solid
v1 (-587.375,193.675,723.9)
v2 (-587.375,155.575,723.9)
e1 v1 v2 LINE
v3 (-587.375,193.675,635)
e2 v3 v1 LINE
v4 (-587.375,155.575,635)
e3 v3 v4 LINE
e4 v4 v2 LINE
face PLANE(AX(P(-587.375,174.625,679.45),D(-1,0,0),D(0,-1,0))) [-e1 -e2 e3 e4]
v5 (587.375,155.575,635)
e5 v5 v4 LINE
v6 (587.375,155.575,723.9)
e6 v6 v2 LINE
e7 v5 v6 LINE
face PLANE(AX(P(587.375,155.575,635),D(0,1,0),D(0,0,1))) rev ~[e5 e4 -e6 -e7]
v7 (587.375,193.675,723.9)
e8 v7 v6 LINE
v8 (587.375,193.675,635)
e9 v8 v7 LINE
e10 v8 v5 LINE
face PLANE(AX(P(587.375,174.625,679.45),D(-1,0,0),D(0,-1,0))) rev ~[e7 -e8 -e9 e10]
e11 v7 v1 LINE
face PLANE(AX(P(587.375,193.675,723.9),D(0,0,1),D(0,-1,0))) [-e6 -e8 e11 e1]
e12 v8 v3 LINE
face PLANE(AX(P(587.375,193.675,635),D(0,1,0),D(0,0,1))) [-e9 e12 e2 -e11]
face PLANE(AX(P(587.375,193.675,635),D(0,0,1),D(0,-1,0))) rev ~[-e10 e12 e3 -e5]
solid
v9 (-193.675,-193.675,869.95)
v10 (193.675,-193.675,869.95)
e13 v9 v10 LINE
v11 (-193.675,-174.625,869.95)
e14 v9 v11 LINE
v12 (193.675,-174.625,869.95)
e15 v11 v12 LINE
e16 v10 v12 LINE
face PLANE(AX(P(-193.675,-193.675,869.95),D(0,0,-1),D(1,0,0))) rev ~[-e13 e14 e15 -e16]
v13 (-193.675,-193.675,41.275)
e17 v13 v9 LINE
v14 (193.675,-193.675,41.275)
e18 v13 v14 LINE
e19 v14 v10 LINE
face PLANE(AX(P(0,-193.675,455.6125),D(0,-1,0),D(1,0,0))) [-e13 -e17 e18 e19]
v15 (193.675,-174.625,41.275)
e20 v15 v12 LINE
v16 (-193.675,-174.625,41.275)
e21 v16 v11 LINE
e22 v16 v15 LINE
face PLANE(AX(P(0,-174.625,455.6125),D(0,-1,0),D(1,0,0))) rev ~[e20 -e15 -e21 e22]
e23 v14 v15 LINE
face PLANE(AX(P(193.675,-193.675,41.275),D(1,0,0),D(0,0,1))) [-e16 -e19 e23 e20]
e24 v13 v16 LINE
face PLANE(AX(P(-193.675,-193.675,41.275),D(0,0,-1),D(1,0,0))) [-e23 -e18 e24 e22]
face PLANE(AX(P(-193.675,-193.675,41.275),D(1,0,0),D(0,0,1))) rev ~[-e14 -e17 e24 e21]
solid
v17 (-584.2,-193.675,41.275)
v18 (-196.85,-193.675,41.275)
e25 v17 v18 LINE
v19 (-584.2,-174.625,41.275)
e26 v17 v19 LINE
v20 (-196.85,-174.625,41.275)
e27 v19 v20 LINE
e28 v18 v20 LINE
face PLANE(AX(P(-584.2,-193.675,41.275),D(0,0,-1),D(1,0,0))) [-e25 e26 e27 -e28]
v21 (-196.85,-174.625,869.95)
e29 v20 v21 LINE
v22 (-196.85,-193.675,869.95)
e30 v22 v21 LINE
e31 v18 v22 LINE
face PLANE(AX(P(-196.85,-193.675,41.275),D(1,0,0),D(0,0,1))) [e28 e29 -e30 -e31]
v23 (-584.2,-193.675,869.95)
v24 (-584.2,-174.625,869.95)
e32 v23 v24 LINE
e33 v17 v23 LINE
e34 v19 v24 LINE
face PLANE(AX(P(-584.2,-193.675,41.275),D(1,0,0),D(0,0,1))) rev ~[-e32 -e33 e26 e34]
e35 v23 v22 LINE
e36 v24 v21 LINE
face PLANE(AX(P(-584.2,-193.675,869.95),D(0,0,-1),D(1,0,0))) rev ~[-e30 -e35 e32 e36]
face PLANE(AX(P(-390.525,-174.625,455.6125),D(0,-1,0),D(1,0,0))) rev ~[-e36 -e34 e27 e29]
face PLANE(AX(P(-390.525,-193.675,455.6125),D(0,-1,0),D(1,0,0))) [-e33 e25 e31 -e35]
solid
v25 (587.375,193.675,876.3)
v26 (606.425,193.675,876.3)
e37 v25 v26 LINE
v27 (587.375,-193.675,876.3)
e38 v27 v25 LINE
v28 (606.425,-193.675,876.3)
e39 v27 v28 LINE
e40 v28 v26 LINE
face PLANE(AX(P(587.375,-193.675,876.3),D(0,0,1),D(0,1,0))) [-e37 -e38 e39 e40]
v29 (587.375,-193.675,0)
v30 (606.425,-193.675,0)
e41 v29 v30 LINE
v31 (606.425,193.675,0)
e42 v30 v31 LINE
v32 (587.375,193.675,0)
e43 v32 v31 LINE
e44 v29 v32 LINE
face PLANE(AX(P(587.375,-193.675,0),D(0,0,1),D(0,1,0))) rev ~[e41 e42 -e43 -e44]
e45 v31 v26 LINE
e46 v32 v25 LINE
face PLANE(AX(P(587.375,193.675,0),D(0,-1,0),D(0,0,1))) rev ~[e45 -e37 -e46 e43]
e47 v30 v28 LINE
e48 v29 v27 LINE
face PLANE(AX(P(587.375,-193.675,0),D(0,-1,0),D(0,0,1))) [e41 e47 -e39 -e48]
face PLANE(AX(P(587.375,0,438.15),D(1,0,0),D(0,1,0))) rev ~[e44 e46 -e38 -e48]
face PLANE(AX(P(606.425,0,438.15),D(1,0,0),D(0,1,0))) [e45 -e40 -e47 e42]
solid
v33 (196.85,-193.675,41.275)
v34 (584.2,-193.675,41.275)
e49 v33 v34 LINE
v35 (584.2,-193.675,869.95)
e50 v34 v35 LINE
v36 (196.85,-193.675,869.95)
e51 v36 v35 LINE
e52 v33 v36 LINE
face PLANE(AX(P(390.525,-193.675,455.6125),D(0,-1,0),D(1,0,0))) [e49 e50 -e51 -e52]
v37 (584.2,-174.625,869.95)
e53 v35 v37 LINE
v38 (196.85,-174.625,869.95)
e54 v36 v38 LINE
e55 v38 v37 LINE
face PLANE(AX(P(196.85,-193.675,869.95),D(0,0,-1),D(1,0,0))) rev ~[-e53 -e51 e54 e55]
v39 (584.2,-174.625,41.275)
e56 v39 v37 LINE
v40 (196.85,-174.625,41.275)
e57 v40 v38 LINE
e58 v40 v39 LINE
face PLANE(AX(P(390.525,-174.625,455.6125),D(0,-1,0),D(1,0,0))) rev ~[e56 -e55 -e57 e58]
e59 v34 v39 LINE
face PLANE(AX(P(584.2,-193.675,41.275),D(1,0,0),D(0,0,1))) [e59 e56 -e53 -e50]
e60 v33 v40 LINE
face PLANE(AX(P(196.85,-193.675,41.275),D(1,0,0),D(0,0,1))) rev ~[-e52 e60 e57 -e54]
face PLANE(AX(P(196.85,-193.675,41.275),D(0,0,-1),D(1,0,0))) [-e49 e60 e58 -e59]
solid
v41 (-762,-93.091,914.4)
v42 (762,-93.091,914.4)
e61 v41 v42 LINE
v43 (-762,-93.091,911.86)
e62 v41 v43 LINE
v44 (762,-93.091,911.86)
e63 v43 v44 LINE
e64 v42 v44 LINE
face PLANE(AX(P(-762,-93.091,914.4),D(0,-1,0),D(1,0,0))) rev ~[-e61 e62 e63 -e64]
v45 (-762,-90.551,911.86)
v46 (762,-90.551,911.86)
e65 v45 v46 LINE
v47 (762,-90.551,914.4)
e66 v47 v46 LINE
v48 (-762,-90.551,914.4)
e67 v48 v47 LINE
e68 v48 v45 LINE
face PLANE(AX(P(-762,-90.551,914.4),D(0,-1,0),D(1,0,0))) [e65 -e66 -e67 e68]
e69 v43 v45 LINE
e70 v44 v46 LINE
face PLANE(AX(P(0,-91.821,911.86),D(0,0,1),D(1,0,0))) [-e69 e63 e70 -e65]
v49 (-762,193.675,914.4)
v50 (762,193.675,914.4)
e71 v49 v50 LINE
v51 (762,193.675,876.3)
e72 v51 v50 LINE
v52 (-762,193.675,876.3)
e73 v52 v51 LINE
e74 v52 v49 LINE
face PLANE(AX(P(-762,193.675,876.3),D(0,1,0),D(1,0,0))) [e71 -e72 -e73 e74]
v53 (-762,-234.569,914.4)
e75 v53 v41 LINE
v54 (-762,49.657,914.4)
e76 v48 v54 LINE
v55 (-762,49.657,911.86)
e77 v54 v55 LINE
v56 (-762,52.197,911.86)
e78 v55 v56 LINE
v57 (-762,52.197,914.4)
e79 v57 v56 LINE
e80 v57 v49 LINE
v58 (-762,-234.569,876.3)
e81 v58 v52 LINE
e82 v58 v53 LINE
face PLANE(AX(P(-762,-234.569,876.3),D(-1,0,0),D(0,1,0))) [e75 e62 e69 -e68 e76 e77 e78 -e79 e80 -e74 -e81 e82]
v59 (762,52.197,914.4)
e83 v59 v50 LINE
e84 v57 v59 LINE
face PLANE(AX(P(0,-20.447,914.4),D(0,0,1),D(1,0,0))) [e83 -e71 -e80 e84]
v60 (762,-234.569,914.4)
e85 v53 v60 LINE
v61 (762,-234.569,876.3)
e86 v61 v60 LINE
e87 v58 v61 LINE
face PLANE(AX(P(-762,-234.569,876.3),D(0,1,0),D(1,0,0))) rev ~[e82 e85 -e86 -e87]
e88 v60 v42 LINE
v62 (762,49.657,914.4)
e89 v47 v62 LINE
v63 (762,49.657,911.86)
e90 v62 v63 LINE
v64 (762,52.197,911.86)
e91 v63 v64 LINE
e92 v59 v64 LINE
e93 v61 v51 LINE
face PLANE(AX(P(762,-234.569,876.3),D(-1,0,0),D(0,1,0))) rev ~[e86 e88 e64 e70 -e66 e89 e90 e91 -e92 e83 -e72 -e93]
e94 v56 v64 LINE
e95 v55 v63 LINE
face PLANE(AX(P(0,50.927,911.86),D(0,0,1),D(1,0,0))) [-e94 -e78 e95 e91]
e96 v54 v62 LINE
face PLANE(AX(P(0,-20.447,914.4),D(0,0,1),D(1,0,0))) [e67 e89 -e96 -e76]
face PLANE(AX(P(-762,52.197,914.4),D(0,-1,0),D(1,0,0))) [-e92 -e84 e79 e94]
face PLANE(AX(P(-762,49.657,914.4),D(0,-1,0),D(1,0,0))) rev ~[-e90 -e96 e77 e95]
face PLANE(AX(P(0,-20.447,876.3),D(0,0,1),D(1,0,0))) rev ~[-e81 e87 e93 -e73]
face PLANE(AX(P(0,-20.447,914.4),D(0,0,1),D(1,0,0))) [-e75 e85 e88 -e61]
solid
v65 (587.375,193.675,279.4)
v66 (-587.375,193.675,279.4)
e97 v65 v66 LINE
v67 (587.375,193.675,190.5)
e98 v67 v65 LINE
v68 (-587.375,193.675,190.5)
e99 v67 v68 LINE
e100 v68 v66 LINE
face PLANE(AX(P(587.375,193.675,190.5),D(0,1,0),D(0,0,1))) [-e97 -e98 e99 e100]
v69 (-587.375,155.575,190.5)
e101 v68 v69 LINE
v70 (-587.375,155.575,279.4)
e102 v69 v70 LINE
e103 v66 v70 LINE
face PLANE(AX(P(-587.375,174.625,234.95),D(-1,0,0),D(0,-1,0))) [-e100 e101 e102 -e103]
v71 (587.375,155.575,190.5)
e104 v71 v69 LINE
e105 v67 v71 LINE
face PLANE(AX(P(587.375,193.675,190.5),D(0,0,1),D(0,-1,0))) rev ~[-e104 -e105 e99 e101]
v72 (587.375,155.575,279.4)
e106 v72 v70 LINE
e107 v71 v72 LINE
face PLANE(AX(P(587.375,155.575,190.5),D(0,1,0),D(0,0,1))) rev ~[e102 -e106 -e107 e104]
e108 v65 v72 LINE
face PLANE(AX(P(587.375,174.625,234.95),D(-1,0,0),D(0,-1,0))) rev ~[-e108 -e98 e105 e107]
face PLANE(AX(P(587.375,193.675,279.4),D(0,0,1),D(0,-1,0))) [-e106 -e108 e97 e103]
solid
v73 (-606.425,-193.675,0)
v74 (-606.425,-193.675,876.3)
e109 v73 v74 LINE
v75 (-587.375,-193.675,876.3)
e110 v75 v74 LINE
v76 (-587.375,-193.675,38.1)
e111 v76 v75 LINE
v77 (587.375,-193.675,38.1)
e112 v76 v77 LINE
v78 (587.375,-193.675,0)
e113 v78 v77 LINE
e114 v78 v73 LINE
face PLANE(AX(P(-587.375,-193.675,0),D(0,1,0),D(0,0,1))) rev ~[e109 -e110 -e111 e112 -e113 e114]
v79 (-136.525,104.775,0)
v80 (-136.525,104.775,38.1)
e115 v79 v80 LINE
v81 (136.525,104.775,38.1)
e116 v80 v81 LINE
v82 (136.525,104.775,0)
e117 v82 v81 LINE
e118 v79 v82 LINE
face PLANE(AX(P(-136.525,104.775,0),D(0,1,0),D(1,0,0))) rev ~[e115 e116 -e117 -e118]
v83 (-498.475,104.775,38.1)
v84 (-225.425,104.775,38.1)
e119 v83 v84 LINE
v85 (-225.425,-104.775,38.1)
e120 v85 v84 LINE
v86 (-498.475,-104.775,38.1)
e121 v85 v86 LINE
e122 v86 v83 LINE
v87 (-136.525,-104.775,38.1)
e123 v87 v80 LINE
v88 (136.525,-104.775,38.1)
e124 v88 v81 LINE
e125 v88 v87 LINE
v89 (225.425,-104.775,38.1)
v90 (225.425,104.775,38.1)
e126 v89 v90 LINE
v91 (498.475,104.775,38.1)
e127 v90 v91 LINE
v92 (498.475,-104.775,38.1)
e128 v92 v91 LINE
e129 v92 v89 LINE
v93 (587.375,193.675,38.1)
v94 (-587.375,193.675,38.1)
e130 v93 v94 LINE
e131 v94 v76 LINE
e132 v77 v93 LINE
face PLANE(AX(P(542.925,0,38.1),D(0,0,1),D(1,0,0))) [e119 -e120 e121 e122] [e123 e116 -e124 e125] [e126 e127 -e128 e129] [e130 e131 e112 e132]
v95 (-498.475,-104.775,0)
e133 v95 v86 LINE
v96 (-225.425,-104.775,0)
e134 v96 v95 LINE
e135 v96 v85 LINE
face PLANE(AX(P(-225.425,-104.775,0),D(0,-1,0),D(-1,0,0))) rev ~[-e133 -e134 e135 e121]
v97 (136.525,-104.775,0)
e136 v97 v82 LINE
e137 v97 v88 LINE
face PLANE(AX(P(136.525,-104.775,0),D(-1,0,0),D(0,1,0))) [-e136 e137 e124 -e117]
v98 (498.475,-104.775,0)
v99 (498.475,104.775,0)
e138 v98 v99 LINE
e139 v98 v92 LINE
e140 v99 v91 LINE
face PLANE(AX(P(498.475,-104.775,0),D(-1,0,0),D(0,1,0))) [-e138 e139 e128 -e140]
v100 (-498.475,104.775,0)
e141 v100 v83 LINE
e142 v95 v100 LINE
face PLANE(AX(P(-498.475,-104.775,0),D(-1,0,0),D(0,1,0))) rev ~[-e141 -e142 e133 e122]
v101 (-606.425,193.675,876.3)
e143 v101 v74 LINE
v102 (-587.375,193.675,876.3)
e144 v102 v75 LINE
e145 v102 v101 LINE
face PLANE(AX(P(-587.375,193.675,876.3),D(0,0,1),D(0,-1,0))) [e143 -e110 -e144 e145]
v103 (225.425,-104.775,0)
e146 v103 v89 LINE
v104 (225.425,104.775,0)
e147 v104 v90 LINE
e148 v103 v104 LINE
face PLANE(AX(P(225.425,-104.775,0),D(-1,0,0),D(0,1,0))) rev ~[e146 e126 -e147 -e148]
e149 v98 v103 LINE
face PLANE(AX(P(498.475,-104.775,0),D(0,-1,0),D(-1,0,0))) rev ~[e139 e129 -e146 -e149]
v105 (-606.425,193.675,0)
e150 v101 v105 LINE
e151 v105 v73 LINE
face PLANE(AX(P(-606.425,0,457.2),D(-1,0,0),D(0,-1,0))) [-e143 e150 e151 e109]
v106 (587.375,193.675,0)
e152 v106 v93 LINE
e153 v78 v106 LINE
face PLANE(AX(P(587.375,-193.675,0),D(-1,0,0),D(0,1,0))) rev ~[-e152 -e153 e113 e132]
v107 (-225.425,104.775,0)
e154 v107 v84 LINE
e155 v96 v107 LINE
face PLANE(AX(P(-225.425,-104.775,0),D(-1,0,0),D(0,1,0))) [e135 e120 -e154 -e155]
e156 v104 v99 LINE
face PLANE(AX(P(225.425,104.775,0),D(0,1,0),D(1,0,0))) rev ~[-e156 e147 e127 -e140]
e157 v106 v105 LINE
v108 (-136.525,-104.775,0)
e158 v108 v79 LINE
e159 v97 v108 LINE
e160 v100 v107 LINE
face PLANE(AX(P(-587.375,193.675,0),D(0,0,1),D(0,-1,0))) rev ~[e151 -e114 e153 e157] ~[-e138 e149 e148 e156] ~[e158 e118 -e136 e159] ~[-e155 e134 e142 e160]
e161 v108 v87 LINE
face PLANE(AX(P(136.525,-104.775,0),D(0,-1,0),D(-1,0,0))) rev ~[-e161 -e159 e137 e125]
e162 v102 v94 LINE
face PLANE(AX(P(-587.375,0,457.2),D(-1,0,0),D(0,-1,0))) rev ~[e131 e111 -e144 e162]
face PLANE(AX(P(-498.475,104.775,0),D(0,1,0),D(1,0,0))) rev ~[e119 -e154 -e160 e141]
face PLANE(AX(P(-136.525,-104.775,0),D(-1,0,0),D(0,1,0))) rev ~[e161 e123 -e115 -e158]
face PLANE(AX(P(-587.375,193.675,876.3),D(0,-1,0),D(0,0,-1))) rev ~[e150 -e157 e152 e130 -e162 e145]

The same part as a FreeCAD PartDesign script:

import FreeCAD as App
import Part
import Sketcher
Q = App.Units.Quantity


def add_polygon(sketch, points):
    """Adds a closed chain of lines whose ends are joined by coincident constraints."""
    first, n = sketch.GeometryCount, len(points)
    for a, b in zip(points, points[1:] + points[:1]):
        sketch.addGeometry(Part.LineSegment(App.Vector(*a, 0), App.Vector(*b, 0)), False)
    for i in range(n):
        sketch.addConstraint(Sketcher.Constraint("Coincident", first + i, 2, first + (i + 1) % n, 1))

doc = App.newDocument("Part")
body = doc.addObject("PartDesign::Body", "Body")

# Sketch on XY plane
sketch1 = body.newObject("Sketcher::SketchObject", "Sketch")
sketch1.AttachmentSupport = (doc.getObject("XY_Plane"), [""])
sketch1.MapMode = "FlatFace"
add_polygon(sketch1, [(587, 194), (-587, 194), (-587, -194), (587, -194)])  # lines 0-3
add_polygon(sketch1, [(498, 105), (498, -105), (225, -105), (225, 105)])  # lines 4-7
add_polygon(sketch1, [(137, -105), (-137, -105), (-137, 105), (137, 105)])  # lines 8-11
add_polygon(sketch1, [(-225, -105), (-498, -105), (-498, 105), (-225, 105)])  # lines 12-15
sketch1.addConstraint([
    Sketcher.Constraint("Horizontal", 0),
    Sketcher.Constraint("Vertical", 1),
    Sketcher.Constraint("Horizontal", 2),
    Sketcher.Constraint("Vertical", 3),
    Sketcher.Constraint("Vertical", 4),
    Sketcher.Constraint("Horizontal", 5),
    Sketcher.Constraint("Vertical", 6),
    Sketcher.Constraint("Horizontal", 7),
    Sketcher.Constraint("Horizontal", 8),
    Sketcher.Constraint("Vertical", 9),
    Sketcher.Constraint("Horizontal", 10),
    Sketcher.Constraint("Vertical", 11),
    Sketcher.Constraint("Horizontal", 12),
    Sketcher.Constraint("Vertical", 13),
    Sketcher.Constraint("Horizontal", 14),
    Sketcher.Constraint("Vertical", 15),
    Sketcher.Constraint("Symmetric", 0, 2, 2, 2, -1, 1),
    Sketcher.Constraint("Symmetric", 8, 2, 10, 2, -1, 1),
    Sketcher.Constraint("Symmetric", 7, 2, 12, 2, -1, 1),
    Sketcher.Constraint("Symmetric", 5, 2, 14, 2, -1, 1),
    Sketcher.Constraint("Horizontal", 5, 2, 8, 2),
    Sketcher.Constraint("Horizontal", 7, 2, 9, 2),
    Sketcher.Constraint("Equal", 7, 8),
    Sketcher.Constraint("DistanceX", 1, 2, 5, 2, Q("32 in")),
    Sketcher.Constraint("DistanceX", 8, 2, 4, 2, Q("25 in")),
    Sketcher.Constraint("DistanceX", 0, 2, 0, 1, Q("46.25 in")),
    Sketcher.Constraint("DistanceY", 1, 2, 1, 1, Q("15.25 in")),
    Sketcher.Constraint("DistanceY", 4, 2, 4, 1, Q("8.25 in")),
])
pad1 = body.newObject("PartDesign::Pad", "Pad")
pad1.Profile = sketch1
pad1.Length = Q("1.5 in")

# Sketch on YZ plane
sketch2 = body.newObject("Sketcher::SketchObject", "Sketch001")
sketch2.AttachmentSupport = (doc.getObject("YZ_Plane"), [""])
sketch2.MapMode = "FlatFace"
sketch2.AttachmentOffset = App.Placement(App.Vector(0, 0, -23.125 * 25.4), App.Rotation())
add_polygon(sketch2, [(194, 876), (194, 0), (-194, 0), (-194, 876)])  # lines 0-3
sketch2.addConstraint([
    Sketcher.Constraint("Vertical", 0),
    Sketcher.Constraint("Horizontal", 1),
    Sketcher.Constraint("Vertical", 2),
    Sketcher.Constraint("Horizontal", 3),
    Sketcher.Constraint("Symmetric", 0, 2, 1, 2, -1, 1),
    Sketcher.Constraint("DistanceY", 0, 2, 0, 1, Q("34.5 in")),
    Sketcher.Constraint("DistanceX", 1, 2, 1, 1, Q("15.25 in")),
])
pad2 = body.newObject("PartDesign::Pad", "Pad001")
pad2.Profile = sketch2
pad2.Length = Q("0.75 in")
pad2.Reversed = True
body2 = doc.addObject("PartDesign::Body", "Body001")

# Sketch on YZ plane
sketch3 = body2.newObject("Sketcher::SketchObject", "Sketch002")
sketch3.AttachmentSupport = (doc.getObject("YZ_Plane001"), [""])
sketch3.MapMode = "FlatFace"
sketch3.AttachmentOffset = App.Placement(App.Vector(0, 0, 23.125 * 25.4), App.Rotation())
add_polygon(sketch3, [(-194, 876), (-194, 0), (194, 0), (194, 876)])  # lines 0-3
sketch3.addConstraint([
    Sketcher.Constraint("Vertical", 0),
    Sketcher.Constraint("Horizontal", 1),
    Sketcher.Constraint("Vertical", 2),
    Sketcher.Constraint("Horizontal", 3),
    Sketcher.Constraint("Symmetric", 0, 2, 1, 2, -1, 1),
    Sketcher.Constraint("DistanceY", 0, 2, 0, 1, Q("34.5 in")),
    Sketcher.Constraint("DistanceX", 1, 1, 1, 2, Q("15.25 in")),
])
pad3 = body2.newObject("PartDesign::Pad", "Pad002")
pad3.Profile = sketch3
pad3.Length = Q("0.75 in")
body3 = doc.addObject("PartDesign::Body", "Body002")

# Sketch on XY plane
sketch4 = body3.newObject("Sketcher::SketchObject", "Sketch003")
sketch4.AttachmentSupport = (doc.getObject("XY_Plane002"), [""])
sketch4.MapMode = "FlatFace"
sketch4.AttachmentOffset = App.Placement(App.Vector(0, 0, 34.5 * 25.4), App.Rotation())
add_polygon(sketch4, [(-762, 194), (-762, -235), (762, -235), (762, 194)])  # lines 0-3
sketch4.addConstraint([
    Sketcher.Constraint("Vertical", 0),
    Sketcher.Constraint("Horizontal", 1),
    Sketcher.Constraint("Vertical", 2),
    Sketcher.Constraint("Horizontal", 3),
    Sketcher.Constraint("DistanceX", 1, 1, 1, 2, Q("60 in")),
    Sketcher.Constraint("DistanceX", 0, 2, -1, 1, Q("30 in")),
    Sketcher.Constraint("DistanceY", 0, 2, 0, 1, Q("16.86 in")),
    Sketcher.Constraint("DistanceY", 0, 2, -1, 1, Q("9.235 in")),
])
pad4 = body3.newObject("PartDesign::Pad", "Pad003")
pad4.Profile = sketch4
pad4.Length = Q("1.5 in")

# Sketch on XY plane
sketch5 = body3.newObject("Sketcher::SketchObject", "Sketch004")
sketch5.AttachmentSupport = (doc.getObject("XY_Plane002"), [""])
sketch5.MapMode = "FlatFace"
sketch5.AttachmentOffset = App.Placement(App.Vector(0, 0, 36 * 25.4), App.Rotation())
add_polygon(sketch5, [(-762, 52.2), (-762, 49.7), (762, 49.7), (762, 52.2)])  # lines 0-3
add_polygon(sketch5, [(-762, -90.6), (-762, -93.1), (762, -93.1), (762, -90.6)])  # lines 4-7
sketch5.addConstraint([
    Sketcher.Constraint("Vertical", 0),
    Sketcher.Constraint("Horizontal", 1),
    Sketcher.Constraint("Vertical", 2),
    Sketcher.Constraint("Horizontal", 3),
    Sketcher.Constraint("Vertical", 4),
    Sketcher.Constraint("Horizontal", 5),
    Sketcher.Constraint("Vertical", 6),
    Sketcher.Constraint("Horizontal", 7),
    Sketcher.Constraint("Vertical", 3, 2, 4, 2),
    Sketcher.Constraint("Vertical", 2, 2, 5, 2),
    Sketcher.Constraint("Equal", 2, 4),
    Sketcher.Constraint("DistanceX", 1, 1, 1, 2, Q("60 in")),
    Sketcher.Constraint("DistanceY", 0, 2, 0, 1, Q("0.1 in")),
    Sketcher.Constraint("DistanceX", 0, 2, -1, 1, Q("30 in")),
    Sketcher.Constraint("DistanceY", 4, 2, 0, 2, Q("5.62 in")),
    Sketcher.Constraint("DistanceY", -1, 1, 0, 2, Q("1.955 in")),
])
pocket1 = body3.newObject("PartDesign::Pocket", "Pocket")
pocket1.Profile = sketch5
pocket1.Length = Q("0.1 in")
body4 = doc.addObject("PartDesign::Body", "Body003")

# Sketch on XZ plane
sketch6 = body4.newObject("Sketcher::SketchObject", "Sketch005")
sketch6.AttachmentSupport = (doc.getObject("XZ_Plane003"), [""])
sketch6.MapMode = "FlatFace"
sketch6.AttachmentOffset = App.Placement(App.Vector(0, 0, 7.625 * 25.4), App.Rotation())
add_polygon(sketch6, [(-584, 870), (-584, 41), (-197, 41), (-197, 870)])  # lines 0-3
sketch6.addConstraint([
    Sketcher.Constraint("Vertical", 0),
    Sketcher.Constraint("Horizontal", 1),
    Sketcher.Constraint("Vertical", 2),
    Sketcher.Constraint("Horizontal", 3),
    Sketcher.Constraint("DistanceX", 0, 2, -1, 1, Q("23 in")),
    Sketcher.Constraint("DistanceX", 1, 1, 1, 2, Q("15.25 in")),
    Sketcher.Constraint("DistanceY", 0, 2, 0, 1, Q("32.625 in")),
    Sketcher.Constraint("DistanceY", -1, 1, 2, 2, Q("34.25 in")),
])
pad5 = body4.newObject("PartDesign::Pad", "Pad004")
pad5.Profile = sketch6
pad5.Length = Q("0.75 in")
pad5.Reversed = True
body5 = doc.addObject("PartDesign::Body", "Body004")

# Sketch on XZ plane
sketch7 = body5.newObject("Sketcher::SketchObject", "Sketch006")
sketch7.AttachmentSupport = (doc.getObject("XZ_Plane004"), [""])
sketch7.MapMode = "FlatFace"
sketch7.AttachmentOffset = App.Placement(App.Vector(0, 0, 7.625 * 25.4), App.Rotation())
add_polygon(sketch7, [(197, 870), (197, 41), (584, 41), (584, 870)])  # lines 0-3
sketch7.addConstraint([
    Sketcher.Constraint("Vertical", 0),
    Sketcher.Constraint("Horizontal", 1),
    Sketcher.Constraint("Vertical", 2),
    Sketcher.Constraint("Horizontal", 3),
    Sketcher.Constraint("DistanceX", -1, 1, 1, 2, Q("23 in")),
    Sketcher.Constraint("DistanceX", 1, 1, 1, 2, Q("15.25 in")),
    Sketcher.Constraint("DistanceY", 0, 2, 0, 1, Q("32.625 in")),
    Sketcher.Constraint("DistanceY", -1, 1, 2, 2, Q("34.25 in")),
])
pad6 = body5.newObject("PartDesign::Pad", "Pad005")
pad6.Profile = sketch7
pad6.Length = Q("0.75 in")
pad6.Reversed = True
body6 = doc.addObject("PartDesign::Body", "Body005")

# Sketch on XZ plane
sketch8 = body6.newObject("Sketcher::SketchObject", "Sketch007")
sketch8.AttachmentSupport = (doc.getObject("XZ_Plane005"), [""])
sketch8.MapMode = "FlatFace"
sketch8.AttachmentOffset = App.Placement(App.Vector(0, 0, 7.625 * 25.4), App.Rotation())
add_polygon(sketch8, [(-194, 870), (-194, 41), (194, 41), (194, 870)])  # lines 0-3
sketch8.addConstraint([
    Sketcher.Constraint("Vertical", 0),
    Sketcher.Constraint("Horizontal", 1),
    Sketcher.Constraint("Vertical", 2),
    Sketcher.Constraint("Horizontal", 3),
    Sketcher.Constraint("DistanceX", 1, 1, 1, 2, Q("15.25 in")),
    Sketcher.Constraint("DistanceY", 0, 2, 0, 1, Q("32.625 in")),
    Sketcher.Constraint("DistanceY", -1, 1, 2, 2, Q("34.25 in")),
    Sketcher.Constraint("DistanceX", 0, 2, -1, 1, Q("7.625 in")),
])
pad7 = body6.newObject("PartDesign::Pad", "Pad006")
pad7.Profile = sketch8
pad7.Length = Q("0.75 in")
pad7.Reversed = True
body7 = doc.addObject("PartDesign::Body", "Body006")

# Sketch on YZ plane
sketch9 = body7.newObject("Sketcher::SketchObject", "Sketch008")
sketch9.AttachmentSupport = (doc.getObject("YZ_Plane006"), [""])
sketch9.MapMode = "FlatFace"
sketch9.AttachmentOffset = App.Placement(App.Vector(0, 0, 23.125 * 25.4), App.Rotation())
add_polygon(sketch9, [(194, 279), (194, 190), (156, 190), (156, 279)])  # lines 0-3
sketch9.addConstraint([
    Sketcher.Constraint("Vertical", 0),
    Sketcher.Constraint("Horizontal", 1),
    Sketcher.Constraint("Vertical", 2),
    Sketcher.Constraint("Horizontal", 3),
    Sketcher.Constraint("DistanceX", 1, 2, 1, 1, Q("1.5 in")),
    Sketcher.Constraint("DistanceY", 0, 2, 0, 1, Q("3.5 in")),
    Sketcher.Constraint("DistanceY", -1, 1, 2, 2, Q("11 in")),
    Sketcher.Constraint("DistanceX", -1, 1, 0, 2, Q("7.625 in")),
])
pad8 = body7.newObject("PartDesign::Pad", "Pad007")
pad8.Profile = sketch9
pad8.Length = Q("46.25 in")
pad8.Reversed = True
body8 = doc.addObject("PartDesign::Body", "Body007")

# Sketch on YZ plane
sketch10 = body8.newObject("Sketcher::SketchObject", "Sketch009")
sketch10.AttachmentSupport = (doc.getObject("YZ_Plane007"), [""])
sketch10.MapMode = "FlatFace"
sketch10.AttachmentOffset = App.Placement(App.Vector(0, 0, 23.125 * 25.4), App.Rotation())
add_polygon(sketch10, [(194, 724), (194, 635), (156, 635), (156, 724)])  # lines 0-3
sketch10.addConstraint([
    Sketcher.Constraint("Vertical", 0),
    Sketcher.Constraint("Horizontal", 1),
    Sketcher.Constraint("Vertical", 2),
    Sketcher.Constraint("Horizontal", 3),
    Sketcher.Constraint("DistanceX", 1, 2, 1, 1, Q("1.5 in")),
    Sketcher.Constraint("DistanceY", 0, 2, 0, 1, Q("3.5 in")),
    Sketcher.Constraint("DistanceY", -1, 1, 0, 2, Q("25 in")),
    Sketcher.Constraint("DistanceX", -1, 1, 0, 2, Q("7.625 in")),
])
pad9 = body8.newObject("PartDesign::Pad", "Pad008")
pad9.Profile = sketch10
pad9.Length = Q("46.25 in")
pad9.Reversed = True

doc.recompute()
